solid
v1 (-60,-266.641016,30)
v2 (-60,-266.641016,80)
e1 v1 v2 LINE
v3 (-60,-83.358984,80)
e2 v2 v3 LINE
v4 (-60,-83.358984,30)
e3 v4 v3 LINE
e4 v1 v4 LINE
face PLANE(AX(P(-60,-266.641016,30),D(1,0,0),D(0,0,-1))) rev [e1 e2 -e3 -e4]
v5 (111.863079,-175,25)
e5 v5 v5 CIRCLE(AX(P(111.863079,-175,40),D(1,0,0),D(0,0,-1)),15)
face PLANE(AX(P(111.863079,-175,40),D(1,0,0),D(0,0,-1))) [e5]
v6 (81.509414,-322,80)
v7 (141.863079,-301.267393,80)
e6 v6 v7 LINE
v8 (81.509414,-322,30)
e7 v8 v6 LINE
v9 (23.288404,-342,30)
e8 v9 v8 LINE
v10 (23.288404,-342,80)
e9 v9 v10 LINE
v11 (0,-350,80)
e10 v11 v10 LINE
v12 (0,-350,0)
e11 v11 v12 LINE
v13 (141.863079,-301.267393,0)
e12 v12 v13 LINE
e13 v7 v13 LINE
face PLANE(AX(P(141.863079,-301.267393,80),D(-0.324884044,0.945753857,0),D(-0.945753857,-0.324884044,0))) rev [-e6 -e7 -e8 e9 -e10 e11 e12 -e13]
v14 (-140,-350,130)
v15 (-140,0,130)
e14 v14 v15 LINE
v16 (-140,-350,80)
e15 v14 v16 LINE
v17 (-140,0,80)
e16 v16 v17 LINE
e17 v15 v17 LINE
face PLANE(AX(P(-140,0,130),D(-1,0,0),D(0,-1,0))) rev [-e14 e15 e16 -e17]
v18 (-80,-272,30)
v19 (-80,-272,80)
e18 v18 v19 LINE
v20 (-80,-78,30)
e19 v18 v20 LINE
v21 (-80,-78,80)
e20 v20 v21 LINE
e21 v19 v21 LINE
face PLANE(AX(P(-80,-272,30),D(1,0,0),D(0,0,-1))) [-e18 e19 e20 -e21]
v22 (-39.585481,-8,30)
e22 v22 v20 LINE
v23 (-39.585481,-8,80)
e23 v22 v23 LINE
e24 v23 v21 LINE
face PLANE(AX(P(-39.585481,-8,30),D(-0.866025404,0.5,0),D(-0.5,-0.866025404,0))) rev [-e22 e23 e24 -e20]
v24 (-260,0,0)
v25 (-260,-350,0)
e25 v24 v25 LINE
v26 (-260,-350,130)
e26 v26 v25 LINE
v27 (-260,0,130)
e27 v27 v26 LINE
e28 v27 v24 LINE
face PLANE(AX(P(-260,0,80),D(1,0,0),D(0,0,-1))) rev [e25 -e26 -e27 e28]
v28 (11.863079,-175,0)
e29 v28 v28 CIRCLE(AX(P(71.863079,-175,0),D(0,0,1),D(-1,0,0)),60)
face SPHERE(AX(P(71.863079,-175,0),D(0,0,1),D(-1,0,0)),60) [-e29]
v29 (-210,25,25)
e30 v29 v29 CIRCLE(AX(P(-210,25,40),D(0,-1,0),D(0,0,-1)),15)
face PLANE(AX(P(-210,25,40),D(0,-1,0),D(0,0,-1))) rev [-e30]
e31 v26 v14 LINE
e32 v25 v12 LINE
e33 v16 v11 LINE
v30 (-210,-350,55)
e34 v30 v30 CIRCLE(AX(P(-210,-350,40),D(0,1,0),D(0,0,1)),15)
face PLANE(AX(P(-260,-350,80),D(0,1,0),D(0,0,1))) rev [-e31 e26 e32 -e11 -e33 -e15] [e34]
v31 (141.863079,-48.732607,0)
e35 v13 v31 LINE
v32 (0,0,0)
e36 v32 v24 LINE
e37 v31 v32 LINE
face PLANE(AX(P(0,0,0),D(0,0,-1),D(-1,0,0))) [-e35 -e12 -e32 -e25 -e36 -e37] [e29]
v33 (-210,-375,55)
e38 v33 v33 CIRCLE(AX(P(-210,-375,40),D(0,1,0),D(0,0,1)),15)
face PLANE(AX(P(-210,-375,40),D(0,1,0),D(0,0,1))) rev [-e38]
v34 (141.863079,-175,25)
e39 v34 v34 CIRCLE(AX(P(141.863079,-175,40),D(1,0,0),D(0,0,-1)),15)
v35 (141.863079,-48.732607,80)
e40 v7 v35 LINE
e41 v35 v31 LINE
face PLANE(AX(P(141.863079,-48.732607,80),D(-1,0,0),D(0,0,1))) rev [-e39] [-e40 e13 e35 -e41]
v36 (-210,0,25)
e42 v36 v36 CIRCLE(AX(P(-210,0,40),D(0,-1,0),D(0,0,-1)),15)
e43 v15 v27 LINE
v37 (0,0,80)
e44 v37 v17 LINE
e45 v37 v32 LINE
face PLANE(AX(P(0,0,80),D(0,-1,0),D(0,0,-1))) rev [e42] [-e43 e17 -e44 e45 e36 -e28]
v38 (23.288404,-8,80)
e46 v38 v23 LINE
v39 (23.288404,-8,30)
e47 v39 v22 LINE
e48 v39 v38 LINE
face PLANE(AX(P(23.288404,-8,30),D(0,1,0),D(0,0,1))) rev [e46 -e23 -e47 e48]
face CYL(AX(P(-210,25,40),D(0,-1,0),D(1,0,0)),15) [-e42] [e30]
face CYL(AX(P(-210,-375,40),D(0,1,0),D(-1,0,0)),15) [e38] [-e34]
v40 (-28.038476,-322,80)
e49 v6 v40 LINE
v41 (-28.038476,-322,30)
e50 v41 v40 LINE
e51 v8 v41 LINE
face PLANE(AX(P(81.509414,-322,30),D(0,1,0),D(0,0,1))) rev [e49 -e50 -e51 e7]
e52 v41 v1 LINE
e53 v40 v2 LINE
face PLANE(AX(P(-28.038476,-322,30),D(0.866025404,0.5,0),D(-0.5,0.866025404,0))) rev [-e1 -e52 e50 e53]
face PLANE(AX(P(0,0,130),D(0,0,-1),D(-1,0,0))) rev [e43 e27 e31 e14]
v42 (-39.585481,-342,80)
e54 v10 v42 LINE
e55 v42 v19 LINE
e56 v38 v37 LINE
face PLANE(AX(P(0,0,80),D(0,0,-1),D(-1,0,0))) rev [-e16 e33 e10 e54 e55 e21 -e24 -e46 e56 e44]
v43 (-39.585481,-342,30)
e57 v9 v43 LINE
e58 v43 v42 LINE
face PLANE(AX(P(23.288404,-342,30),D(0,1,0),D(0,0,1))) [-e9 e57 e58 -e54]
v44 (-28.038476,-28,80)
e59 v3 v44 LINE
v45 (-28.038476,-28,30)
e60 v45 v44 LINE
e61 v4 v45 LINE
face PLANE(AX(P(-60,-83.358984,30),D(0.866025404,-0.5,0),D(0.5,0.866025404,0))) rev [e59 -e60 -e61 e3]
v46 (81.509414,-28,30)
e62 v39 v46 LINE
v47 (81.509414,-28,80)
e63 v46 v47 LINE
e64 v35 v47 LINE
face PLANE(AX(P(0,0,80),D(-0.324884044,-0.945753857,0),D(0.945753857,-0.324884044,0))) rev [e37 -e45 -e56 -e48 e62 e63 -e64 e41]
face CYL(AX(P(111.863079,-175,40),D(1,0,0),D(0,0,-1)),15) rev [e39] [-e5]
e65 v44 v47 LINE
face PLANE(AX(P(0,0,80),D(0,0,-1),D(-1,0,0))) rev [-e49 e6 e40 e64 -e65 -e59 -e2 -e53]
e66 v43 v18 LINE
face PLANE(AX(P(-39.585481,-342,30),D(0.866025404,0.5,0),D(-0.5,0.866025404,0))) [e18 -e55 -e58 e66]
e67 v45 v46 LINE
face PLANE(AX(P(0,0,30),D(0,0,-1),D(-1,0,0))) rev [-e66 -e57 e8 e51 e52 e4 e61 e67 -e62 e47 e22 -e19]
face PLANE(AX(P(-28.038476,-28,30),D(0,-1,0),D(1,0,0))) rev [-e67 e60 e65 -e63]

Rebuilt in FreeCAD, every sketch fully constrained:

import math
import FreeCAD as App
import Part
import Sketcher
from FreeCAD import Vector
Q = App.Units.Quantity

doc = App.newDocument("Part")
body = doc.addObject("PartDesign::Body", "Body")

# Sketch on XY plane
sketch1 = body.newObject("Sketcher::SketchObject", "Sketch")
sketch1.AttachmentSupport = (doc.getObject("XY_Plane"), [""])
sketch1.MapMode = "FlatFace"
sketch1.addGeometry([
    Part.LineSegment(Vector(0, 0, 0), Vector(-260, 0, 0)),  # 0
    Part.LineSegment(Vector(-260, 0, 0), Vector(-260, -350, 0)),  # 1
    Part.LineSegment(Vector(-260, -350, 0), Vector(0, -350, 0)),  # 2
    Part.LineSegment(Vector(0, -350, 0), Vector(142, -301, 0)),  # 3
    Part.LineSegment(Vector(142, -301, 0), Vector(142, -49, 0)),  # 4
    Part.LineSegment(Vector(142, -49, 0), Vector(0, 0, 0)),  # 5
], False)
sketch1.addConstraint([
    Sketcher.Constraint("Coincident", 0, 2, 1, 1),
    Sketcher.Constraint("Coincident", 1, 2, 2, 1),
    Sketcher.Constraint("Coincident", 2, 2, 3, 1),
    Sketcher.Constraint("Coincident", 3, 2, 4, 1),
    Sketcher.Constraint("Coincident", 4, 2, 5, 1),
    Sketcher.Constraint("Coincident", 5, 2, 0, 1),
    Sketcher.Constraint("Horizontal", 0),
    Sketcher.Constraint("Vertical", 1),
    Sketcher.Constraint("Horizontal", 2),
    Sketcher.Constraint("Vertical", 4),
    Sketcher.Constraint("Coincident", 5, 2, -1, 1),
    Sketcher.Constraint("PointOnObject", 2, 2, -2),
    Sketcher.Constraint("Equal", 3, 5),
    Sketcher.Constraint("DistanceX", 0, 2, 0, 1, 260.0),
    Sketcher.Constraint("DistanceY", 1, 2, 1, 1, 350.0),
    Sketcher.Constraint("Distance", 3, 150.0),
    Sketcher.Constraint("DistanceY", 4, 1, 4, 2, 252.534787),
])
pad1 = body.newObject("PartDesign::Pad", "Pad")
pad1.Profile = sketch1
pad1.Length = 80

# Sketch on XZ plane
sketch2 = body.newObject("Sketcher::SketchObject", "Sketch001")
sketch2.AttachmentSupport = (doc.getObject("XZ_Plane"), [""])
sketch2.MapMode = "FlatFace"
sketch2.AttachmentOffset = App.Placement(Vector(0, 0, 350), App.Rotation())
sketch2.addGeometry(Part.Circle(Vector(-210, 40, 0), Vector(0, 0, 1), 15), False)
sketch2.addConstraint([
    Sketcher.Constraint("Diameter", 0, 30.0),
    Sketcher.Constraint("DistanceX", 0, 3, -1, 1, 210.0),
    Sketcher.Constraint("DistanceY", -1, 1, 0, 3, 40.0),
])
pad2 = body.newObject("PartDesign::Pad", "Pad001")
pad2.Profile = sketch2
pad2.Length = 25

# Sketch on XZ plane
sketch3 = body.newObject("Sketcher::SketchObject", "Sketch002")
sketch3.AttachmentSupport = (doc.getObject("XZ_Plane"), [""])
sketch3.MapMode = "FlatFace"
sketch3.AttachmentOffset = App.Placement(Vector(0, 0, -25), App.Rotation())
sketch3.addGeometry(Part.Circle(Vector(-210, 40, 0), Vector(0, 0, 1), 15), False)
sketch3.addConstraint([
    Sketcher.Constraint("Diameter", 0, 30.0),
    Sketcher.Constraint("DistanceX", 0, 3, -1, 1, 210.0),
    Sketcher.Constraint("DistanceY", -1, 1, 0, 3, 40.0),
])
pad3 = body.newObject("PartDesign::Pad", "Pad002")
pad3.Profile = sketch3
pad3.Length = 25

# Sketch on YZ plane
sketch4 = body.newObject("Sketcher::SketchObject", "Sketch003")
sketch4.AttachmentSupport = (doc.getObject("YZ_Plane"), [""])
sketch4.MapMode = "FlatFace"
sketch4.AttachmentOffset = App.Placement(Vector(0, 0, 141.863079), App.Rotation())
sketch4.addGeometry(Part.Circle(Vector(-175, 40, 0), Vector(0, 0, 1), 15), False)
sketch4.addConstraint([
    Sketcher.Constraint("Diameter", 0, 30.0),
    Sketcher.Constraint("DistanceX", 0, 3, -1, 1, 175.0),
    Sketcher.Constraint("DistanceY", -1, 1, 0, 3, 40.0),
])
pocket1 = body.newObject("PartDesign::Pocket", "Pocket")
pocket1.Profile = sketch4
pocket1.Length = 30

# Sketch on XY plane
sketch5 = body.newObject("Sketcher::SketchObject", "Sketch004")
sketch5.AttachmentSupport = (doc.getObject("XY_Plane"), [""])
sketch5.MapMode = "FlatFace"
sketch5.AttachmentOffset = App.Placement(Vector(0, 0, 80), App.Rotation())
sketch5.addGeometry([
    Part.LineSegment(Vector(-40, -342, 0), Vector(23, -342, 0)),  # 0
    Part.LineSegment(Vector(23, -342, 0), Vector(82, -322, 0)),  # 1
    Part.LineSegment(Vector(82, -322, 0), Vector(-28, -322, 0)),  # 2
    Part.LineSegment(Vector(-28, -322, 0), Vector(-60, -267, 0)),  # 3
    Part.LineSegment(Vector(-60, -267, 0), Vector(-60, -83, 0)),  # 4
    Part.LineSegment(Vector(-60, -83, 0), Vector(-28, -28, 0)),  # 5
    Part.LineSegment(Vector(-28, -28, 0), Vector(82, -28, 0)),  # 6
    Part.LineSegment(Vector(82, -28, 0), Vector(23, -8, 0)),  # 7
    Part.LineSegment(Vector(23, -8, 0), Vector(-40, -8, 0)),  # 8
    Part.LineSegment(Vector(-40, -8, 0), Vector(-80, -78, 0)),  # 9
    Part.LineSegment(Vector(-80, -78, 0), Vector(-80, -272, 0)),  # 10
    Part.LineSegment(Vector(-80, -272, 0), Vector(-40, -342, 0)),  # 11
], False)
sketch5.addConstraint([
    Sketcher.Constraint("Coincident", 0, 2, 1, 1),
    Sketcher.Constraint("Coincident", 1, 2, 2, 1),
    Sketcher.Constraint("Coincident", 2, 2, 3, 1),
    Sketcher.Constraint("Coincident", 3, 2, 4, 1),
    Sketcher.Constraint("Coincident", 4, 2, 5, 1),
    Sketcher.Constraint("Coincident", 5, 2, 6, 1),
    Sketcher.Constraint("Coincident", 6, 2, 7, 1),
    Sketcher.Constraint("Coincident", 7, 2, 8, 1),
    Sketcher.Constraint("Coincident", 8, 2, 9, 1),
    Sketcher.Constraint("Coincident", 9, 2, 10, 1),
    Sketcher.Constraint("Coincident", 10, 2, 11, 1),
    Sketcher.Constraint("Coincident", 11, 2, 0, 1),
    Sketcher.Constraint("Horizontal", 0),
    Sketcher.Constraint("Horizontal", 2),
    Sketcher.Constraint("Vertical", 4),
    Sketcher.Constraint("Horizontal", 6),
    Sketcher.Constraint("Horizontal", 8),
    Sketcher.Constraint("Vertical", 10),
    Sketcher.Constraint("Parallel", 5, 9),
    Sketcher.Constraint("Parallel", 3, 11),
    Sketcher.Constraint("Vertical", 2, 2, 5, 2),
    Sketcher.Constraint("Vertical", 1, 2, 6, 2),
    Sketcher.Constraint("Vertical", 0, 2, 7, 2),
    Sketcher.Constraint("Vertical", 8, 2, 11, 2),
    Sketcher.Constraint("Equal", 3, 5),
    Sketcher.Constraint("Equal", 1, 7),
    Sketcher.Constraint("DistanceY", 10, 2, 10, 1, 194.0),
    Sketcher.Constraint("Angle", 3, Q("120 deg")),
    Sketcher.Constraint("DistanceY", 0, 2, -1, 1, 342.0),
    Sketcher.Constraint("DistanceY", 1, 2, -1, 1, 322.0),
    Sketcher.Constraint("DistanceX", 3, 2, -1, 1, 60.0),
    Sketcher.Constraint("DistanceY", 5, 2, -1, 1, 28.0),
    Sketcher.Constraint("DistanceX", 9, 2, -1, 1, 80.0),
    Sketcher.Constraint("DistanceX", 2, 2, 2, 1, 109.54789),
    Sketcher.Constraint("Distance", 3, 63.923048),
    Sketcher.Constraint("DistanceX", 0, 1, 0, 2, 62.873885),
])
pocket2 = body.newObject("PartDesign::Pocket", "Pocket001")
pocket2.Profile = sketch5
pocket2.Length = 50

# Sketch on XY plane
sketch6 = body.newObject("Sketcher::SketchObject", "Sketch005")
sketch6.AttachmentSupport = (doc.getObject("XY_Plane"), [""])
sketch6.MapMode = "FlatFace"
sketch6.addGeometry([
    Part.LineSegment(Vector(132, -175, 0), Vector(12, -175, 0)),
    Part.ArcOfCircle(Part.Circle(Vector(72, -175, 0), Vector(0, 0, 1), 60), math.radians(0), math.radians(180)),
], False)
sketch6.addGeometry(Part.LineSegment(Vector(132, -175, 0), Vector(12, -175, 0)), True)  # axis
sketch6.addConstraint([
    Sketcher.Constraint("Coincident", 0, 1, 1, 1),
    Sketcher.Constraint("Coincident", 1, 2, 0, 2),
    Sketcher.Constraint("Horizontal", 0),
    Sketcher.Constraint("Horizontal", 2),
    Sketcher.Constraint("Coincident", 2, 1, 0, 1),
    Sketcher.Constraint("Horizontal", 1, 3, 0, 1),
    Sketcher.Constraint("Equal", 0, 2),
    Sketcher.Constraint("Radius", 1, 60.0),
    Sketcher.Constraint("DistanceY", 1, 3, -1, 1, 175.0),
    Sketcher.Constraint("DistanceX", -1, 1, 1, 3, 71.863079),
])
revolution = body.newObject("PartDesign::Revolution", "Revolution")
revolution.Profile = sketch6
revolution.ReferenceAxis = (sketch6, ["Axis0"])
revolution.Angle = 180

# Sketch on XY plane
sketch7 = body.newObject("Sketcher::SketchObject", "Sketch006")
sketch7.AttachmentSupport = (doc.getObject("XY_Plane"), [""])
sketch7.MapMode = "FlatFace"
sketch7.AttachmentOffset = App.Placement(Vector(0, 0, 80), App.Rotation())
sketch7.addGeometry([
    Part.LineSegment(Vector(-260, 0, 0), Vector(-260, -350, 0)),
    Part.LineSegment(Vector(-260, -350, 0), Vector(-140, -350, 0)),
    Part.LineSegment(Vector(-140, -350, 0), Vector(-140, 0, 0)),
    Part.LineSegment(Vector(-140, 0, 0), Vector(-260, 0, 0)),
], False)
sketch7.addConstraint([
    Sketcher.Constraint("Coincident", 0, 2, 1, 1),
    Sketcher.Constraint("Coincident", 1, 2, 2, 1),
    Sketcher.Constraint("Coincident", 2, 2, 3, 1),
    Sketcher.Constraint("Coincident", 3, 2, 0, 1),
    Sketcher.Constraint("Vertical", 0),
    Sketcher.Constraint("Horizontal", 1),
    Sketcher.Constraint("Vertical", 2),
    Sketcher.Constraint("Horizontal", 3),
    Sketcher.Constraint("PointOnObject", 2, 2, -1),
    Sketcher.Constraint("DistanceX", 1, 1, 1, 2, 120.0),
    Sketcher.Constraint("DistanceY", 0, 2, 0, 1, 350.0),
    Sketcher.Constraint("DistanceX", 0, 2, -1, 1, 260.0),
])
pad4 = body.newObject("PartDesign::Pad", "Pad003")
pad4.Profile = sketch7
pad4.Length = 50

doc.recompute()
